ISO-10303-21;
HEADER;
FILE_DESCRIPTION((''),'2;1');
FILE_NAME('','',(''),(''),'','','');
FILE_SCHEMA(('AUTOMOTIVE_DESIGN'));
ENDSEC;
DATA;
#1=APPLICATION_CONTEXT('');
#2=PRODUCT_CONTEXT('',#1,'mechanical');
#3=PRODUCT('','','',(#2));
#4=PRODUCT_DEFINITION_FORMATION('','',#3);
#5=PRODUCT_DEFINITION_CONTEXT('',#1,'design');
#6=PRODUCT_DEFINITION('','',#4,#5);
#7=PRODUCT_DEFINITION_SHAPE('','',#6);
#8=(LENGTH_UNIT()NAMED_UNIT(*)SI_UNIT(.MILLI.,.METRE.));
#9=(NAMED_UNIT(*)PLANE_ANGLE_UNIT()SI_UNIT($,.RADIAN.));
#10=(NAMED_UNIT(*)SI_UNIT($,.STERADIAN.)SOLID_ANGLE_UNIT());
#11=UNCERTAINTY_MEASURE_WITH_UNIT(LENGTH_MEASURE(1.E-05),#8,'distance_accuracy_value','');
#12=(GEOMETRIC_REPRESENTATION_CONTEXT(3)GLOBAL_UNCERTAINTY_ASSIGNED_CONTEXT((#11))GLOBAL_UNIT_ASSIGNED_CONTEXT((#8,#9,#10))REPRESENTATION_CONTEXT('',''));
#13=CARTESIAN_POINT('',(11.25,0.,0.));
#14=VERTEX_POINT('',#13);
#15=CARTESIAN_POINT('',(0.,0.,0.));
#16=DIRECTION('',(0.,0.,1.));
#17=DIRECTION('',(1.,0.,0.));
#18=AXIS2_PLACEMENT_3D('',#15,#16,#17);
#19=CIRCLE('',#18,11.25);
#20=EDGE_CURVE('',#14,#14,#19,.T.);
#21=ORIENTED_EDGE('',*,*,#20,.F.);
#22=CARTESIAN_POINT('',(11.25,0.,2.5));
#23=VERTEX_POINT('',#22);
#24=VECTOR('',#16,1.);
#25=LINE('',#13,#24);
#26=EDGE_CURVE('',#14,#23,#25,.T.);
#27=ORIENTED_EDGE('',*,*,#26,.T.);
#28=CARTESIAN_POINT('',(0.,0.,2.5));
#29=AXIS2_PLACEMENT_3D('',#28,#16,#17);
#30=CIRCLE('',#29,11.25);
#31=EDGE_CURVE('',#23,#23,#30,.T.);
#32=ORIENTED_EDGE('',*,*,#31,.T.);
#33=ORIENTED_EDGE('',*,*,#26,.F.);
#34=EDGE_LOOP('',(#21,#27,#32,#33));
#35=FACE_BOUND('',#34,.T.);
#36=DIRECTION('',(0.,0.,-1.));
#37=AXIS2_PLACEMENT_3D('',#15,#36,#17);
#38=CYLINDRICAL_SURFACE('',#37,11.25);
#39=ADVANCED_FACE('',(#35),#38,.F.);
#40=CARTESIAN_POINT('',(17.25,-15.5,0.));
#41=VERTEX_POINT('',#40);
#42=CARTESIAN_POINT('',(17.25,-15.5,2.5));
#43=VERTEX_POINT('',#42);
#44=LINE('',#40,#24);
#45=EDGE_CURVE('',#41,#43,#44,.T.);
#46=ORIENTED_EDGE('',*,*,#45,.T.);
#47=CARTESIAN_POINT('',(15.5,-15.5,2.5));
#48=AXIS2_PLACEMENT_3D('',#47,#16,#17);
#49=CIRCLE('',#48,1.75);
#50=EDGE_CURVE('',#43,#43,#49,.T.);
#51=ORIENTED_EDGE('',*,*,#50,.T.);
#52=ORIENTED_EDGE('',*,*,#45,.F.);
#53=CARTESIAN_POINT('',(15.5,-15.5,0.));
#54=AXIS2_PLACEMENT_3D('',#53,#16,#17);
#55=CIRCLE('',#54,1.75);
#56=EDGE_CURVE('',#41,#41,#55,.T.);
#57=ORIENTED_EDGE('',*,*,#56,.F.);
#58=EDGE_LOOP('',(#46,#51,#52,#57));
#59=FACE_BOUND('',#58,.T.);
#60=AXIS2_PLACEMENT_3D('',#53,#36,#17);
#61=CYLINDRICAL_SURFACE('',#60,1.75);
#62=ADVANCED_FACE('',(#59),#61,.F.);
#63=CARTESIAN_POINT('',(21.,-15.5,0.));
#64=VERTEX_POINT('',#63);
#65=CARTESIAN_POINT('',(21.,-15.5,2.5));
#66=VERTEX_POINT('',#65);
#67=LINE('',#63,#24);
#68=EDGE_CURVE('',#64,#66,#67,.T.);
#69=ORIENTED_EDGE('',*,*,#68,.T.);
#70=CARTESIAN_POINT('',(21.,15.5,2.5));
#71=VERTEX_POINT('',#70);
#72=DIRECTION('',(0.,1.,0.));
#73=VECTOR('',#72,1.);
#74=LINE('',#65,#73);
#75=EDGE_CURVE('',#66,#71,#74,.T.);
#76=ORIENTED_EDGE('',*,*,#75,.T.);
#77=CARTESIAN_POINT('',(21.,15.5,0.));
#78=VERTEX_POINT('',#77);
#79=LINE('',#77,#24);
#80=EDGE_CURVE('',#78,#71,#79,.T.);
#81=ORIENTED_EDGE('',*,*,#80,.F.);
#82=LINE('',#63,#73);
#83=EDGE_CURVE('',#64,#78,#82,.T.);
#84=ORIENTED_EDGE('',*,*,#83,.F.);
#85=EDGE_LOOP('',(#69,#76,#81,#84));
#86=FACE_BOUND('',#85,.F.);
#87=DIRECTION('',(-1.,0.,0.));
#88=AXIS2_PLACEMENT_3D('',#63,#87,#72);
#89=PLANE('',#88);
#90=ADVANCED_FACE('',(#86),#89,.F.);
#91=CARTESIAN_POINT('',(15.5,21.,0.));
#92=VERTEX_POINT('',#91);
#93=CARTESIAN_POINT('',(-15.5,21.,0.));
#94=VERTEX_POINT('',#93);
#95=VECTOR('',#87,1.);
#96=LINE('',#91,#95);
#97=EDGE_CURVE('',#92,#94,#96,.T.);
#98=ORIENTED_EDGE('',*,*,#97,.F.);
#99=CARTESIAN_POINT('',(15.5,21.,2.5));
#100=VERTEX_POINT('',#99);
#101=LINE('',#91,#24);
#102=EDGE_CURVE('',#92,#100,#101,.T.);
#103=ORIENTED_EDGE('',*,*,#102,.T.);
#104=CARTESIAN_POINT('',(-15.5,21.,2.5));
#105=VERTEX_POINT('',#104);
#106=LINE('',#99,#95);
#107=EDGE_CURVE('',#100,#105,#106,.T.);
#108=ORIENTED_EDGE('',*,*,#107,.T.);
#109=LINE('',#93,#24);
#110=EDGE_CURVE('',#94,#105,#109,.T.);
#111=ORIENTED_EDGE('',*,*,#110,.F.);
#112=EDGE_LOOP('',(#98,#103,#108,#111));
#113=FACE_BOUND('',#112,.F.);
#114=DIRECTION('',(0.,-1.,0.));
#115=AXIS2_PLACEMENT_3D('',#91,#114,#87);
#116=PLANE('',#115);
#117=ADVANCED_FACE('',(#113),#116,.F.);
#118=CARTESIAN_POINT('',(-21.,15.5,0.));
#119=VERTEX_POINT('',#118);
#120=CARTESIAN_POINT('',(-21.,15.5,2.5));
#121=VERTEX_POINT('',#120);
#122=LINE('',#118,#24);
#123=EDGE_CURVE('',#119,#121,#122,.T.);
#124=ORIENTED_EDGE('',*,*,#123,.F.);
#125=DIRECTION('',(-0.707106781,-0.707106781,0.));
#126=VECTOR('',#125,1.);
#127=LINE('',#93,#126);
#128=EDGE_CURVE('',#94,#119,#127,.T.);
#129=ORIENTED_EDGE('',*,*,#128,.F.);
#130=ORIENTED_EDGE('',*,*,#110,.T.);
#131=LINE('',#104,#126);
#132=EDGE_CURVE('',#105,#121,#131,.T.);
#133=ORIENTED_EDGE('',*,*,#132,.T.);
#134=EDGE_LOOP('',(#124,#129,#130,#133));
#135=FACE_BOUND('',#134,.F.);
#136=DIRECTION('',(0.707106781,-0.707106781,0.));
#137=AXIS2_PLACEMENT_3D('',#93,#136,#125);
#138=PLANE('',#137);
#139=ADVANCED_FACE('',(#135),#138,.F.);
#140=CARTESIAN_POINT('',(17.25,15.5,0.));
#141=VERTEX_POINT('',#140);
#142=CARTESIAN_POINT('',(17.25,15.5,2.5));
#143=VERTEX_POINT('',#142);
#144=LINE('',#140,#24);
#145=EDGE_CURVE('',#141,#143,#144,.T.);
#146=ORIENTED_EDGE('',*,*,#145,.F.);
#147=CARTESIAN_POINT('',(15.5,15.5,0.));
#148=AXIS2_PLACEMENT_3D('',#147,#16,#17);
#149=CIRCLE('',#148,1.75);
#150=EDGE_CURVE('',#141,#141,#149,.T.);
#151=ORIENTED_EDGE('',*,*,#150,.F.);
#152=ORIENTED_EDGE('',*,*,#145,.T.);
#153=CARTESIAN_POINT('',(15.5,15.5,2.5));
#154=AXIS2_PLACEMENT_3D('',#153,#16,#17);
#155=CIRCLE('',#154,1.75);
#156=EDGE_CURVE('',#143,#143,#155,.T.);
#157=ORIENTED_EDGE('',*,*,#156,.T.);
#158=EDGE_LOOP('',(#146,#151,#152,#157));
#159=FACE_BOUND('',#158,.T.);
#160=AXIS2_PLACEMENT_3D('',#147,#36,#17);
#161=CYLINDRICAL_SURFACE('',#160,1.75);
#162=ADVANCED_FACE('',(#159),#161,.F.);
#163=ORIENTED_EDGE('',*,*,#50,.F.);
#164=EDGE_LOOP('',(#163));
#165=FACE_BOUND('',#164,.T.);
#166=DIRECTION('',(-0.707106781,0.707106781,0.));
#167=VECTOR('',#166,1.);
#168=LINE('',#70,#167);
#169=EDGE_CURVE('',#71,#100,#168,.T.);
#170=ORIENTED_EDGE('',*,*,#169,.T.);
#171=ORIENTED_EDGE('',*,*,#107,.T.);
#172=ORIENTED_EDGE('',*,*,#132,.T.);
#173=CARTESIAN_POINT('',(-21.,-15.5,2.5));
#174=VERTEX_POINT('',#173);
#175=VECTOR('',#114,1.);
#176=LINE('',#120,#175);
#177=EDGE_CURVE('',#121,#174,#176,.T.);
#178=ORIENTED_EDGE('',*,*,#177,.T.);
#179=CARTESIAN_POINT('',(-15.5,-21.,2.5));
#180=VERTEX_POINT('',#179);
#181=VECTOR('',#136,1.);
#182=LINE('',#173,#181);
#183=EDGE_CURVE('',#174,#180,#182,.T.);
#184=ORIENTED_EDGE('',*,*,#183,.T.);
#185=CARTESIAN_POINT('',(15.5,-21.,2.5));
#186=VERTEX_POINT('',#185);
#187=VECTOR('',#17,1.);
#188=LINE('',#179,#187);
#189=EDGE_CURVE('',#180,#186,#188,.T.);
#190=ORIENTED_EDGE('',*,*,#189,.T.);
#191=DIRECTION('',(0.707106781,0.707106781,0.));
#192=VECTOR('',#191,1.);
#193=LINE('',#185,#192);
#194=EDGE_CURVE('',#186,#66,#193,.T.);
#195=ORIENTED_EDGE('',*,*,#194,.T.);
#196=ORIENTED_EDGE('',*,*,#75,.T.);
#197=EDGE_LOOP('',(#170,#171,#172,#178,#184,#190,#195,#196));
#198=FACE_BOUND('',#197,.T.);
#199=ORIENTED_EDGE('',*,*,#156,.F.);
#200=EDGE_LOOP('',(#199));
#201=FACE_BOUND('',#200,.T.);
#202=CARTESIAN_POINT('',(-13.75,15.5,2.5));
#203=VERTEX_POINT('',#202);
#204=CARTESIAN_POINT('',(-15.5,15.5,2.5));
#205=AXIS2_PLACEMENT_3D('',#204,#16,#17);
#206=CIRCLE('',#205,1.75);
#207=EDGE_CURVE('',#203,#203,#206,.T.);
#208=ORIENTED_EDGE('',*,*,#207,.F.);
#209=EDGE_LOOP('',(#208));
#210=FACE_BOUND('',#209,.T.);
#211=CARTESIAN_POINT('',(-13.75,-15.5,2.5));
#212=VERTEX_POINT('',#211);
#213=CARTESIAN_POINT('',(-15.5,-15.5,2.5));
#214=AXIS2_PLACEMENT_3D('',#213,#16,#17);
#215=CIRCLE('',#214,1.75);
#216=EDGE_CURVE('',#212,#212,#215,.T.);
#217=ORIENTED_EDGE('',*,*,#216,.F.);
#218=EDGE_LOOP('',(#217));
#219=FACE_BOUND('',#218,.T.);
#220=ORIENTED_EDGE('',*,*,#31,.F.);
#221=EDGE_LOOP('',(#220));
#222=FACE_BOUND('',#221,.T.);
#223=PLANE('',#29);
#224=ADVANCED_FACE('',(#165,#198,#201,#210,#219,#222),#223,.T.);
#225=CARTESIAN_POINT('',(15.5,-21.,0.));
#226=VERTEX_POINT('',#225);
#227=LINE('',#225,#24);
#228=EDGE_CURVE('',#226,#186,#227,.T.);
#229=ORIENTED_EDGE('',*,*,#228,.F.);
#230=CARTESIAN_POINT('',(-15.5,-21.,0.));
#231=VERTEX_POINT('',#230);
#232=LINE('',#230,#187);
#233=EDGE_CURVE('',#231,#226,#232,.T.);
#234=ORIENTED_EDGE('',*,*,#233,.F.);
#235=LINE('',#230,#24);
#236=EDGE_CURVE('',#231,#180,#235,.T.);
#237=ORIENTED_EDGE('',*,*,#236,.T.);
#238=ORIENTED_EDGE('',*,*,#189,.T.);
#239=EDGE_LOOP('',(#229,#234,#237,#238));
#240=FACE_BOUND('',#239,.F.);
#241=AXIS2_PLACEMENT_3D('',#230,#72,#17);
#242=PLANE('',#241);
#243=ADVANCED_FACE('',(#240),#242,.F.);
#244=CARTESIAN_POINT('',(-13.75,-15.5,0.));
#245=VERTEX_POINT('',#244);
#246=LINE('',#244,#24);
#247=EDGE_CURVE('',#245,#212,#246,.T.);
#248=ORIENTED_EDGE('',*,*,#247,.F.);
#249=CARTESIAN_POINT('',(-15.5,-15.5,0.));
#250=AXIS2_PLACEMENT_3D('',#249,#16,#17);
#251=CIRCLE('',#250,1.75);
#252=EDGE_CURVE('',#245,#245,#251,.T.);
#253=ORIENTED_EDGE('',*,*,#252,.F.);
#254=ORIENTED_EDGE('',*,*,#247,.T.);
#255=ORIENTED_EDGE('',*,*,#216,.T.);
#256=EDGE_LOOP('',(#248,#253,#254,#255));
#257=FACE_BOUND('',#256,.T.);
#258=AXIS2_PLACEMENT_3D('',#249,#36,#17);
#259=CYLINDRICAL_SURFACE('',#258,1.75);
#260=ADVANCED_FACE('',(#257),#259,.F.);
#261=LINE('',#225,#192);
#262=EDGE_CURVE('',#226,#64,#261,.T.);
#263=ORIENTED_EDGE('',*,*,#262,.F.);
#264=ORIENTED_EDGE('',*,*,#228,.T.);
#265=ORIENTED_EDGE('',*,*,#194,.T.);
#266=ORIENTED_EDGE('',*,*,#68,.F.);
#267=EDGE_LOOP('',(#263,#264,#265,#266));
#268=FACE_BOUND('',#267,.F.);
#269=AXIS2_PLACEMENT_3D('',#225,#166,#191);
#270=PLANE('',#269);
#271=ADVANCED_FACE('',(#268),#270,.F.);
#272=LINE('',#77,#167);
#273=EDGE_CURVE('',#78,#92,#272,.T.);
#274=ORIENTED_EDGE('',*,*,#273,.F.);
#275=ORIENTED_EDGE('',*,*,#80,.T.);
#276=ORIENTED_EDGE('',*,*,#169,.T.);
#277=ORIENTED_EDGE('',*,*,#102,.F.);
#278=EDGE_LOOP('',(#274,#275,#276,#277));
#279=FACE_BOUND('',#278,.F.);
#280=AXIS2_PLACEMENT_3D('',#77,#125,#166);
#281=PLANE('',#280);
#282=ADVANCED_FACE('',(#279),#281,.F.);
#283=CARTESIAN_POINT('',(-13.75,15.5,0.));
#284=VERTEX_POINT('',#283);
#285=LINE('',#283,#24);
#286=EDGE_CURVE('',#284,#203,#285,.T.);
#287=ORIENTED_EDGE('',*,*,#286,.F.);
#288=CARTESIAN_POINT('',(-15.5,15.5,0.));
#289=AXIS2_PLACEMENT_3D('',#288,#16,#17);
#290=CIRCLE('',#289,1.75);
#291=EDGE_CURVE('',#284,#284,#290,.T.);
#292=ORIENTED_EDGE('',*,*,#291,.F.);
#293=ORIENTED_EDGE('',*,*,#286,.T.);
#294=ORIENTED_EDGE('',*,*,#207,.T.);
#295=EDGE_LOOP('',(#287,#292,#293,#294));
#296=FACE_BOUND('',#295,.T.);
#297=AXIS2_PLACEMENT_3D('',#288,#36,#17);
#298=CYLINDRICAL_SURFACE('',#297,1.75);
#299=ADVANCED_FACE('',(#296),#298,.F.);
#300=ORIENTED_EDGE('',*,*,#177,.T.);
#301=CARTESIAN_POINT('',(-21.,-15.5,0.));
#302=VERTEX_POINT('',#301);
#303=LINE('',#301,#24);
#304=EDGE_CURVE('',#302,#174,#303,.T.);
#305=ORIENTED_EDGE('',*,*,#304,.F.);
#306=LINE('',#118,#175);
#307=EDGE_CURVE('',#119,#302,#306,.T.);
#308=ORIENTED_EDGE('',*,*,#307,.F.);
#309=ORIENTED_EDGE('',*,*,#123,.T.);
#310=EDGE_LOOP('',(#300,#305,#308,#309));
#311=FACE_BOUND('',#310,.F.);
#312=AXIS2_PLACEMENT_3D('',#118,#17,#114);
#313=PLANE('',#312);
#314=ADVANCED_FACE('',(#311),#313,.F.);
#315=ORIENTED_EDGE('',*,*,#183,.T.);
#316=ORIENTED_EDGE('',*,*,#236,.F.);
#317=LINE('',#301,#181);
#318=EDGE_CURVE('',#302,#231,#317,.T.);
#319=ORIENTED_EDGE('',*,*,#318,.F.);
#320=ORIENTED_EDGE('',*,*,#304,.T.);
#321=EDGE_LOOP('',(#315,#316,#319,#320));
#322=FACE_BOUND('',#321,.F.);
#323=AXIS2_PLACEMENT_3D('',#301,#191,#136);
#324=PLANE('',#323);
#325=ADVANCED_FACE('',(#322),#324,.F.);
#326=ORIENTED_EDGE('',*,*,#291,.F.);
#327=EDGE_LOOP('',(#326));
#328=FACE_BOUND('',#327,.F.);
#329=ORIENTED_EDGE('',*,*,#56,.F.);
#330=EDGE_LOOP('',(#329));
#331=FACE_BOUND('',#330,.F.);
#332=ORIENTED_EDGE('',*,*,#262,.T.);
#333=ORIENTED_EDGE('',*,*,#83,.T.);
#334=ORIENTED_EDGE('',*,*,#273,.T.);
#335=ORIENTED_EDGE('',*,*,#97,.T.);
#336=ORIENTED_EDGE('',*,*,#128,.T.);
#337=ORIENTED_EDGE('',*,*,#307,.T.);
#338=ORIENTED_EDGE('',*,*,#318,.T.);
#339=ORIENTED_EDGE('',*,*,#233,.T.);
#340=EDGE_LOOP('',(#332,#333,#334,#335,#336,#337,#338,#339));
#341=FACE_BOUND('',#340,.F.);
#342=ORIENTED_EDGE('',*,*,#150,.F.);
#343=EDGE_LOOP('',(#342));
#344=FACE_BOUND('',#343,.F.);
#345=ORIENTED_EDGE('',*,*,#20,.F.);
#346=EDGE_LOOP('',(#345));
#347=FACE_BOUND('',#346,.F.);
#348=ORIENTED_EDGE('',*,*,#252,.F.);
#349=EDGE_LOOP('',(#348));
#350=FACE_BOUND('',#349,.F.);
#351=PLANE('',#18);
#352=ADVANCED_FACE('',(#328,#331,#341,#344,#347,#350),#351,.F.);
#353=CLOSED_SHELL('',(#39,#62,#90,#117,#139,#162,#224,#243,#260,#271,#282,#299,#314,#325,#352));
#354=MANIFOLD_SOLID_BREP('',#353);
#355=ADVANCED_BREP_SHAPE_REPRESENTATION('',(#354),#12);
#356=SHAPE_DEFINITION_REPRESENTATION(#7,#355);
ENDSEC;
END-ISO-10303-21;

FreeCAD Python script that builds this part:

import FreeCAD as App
import Part
import Sketcher
from FreeCAD import Vector


def add_polygon(sketch, points):
    """Adds a closed chain of lines whose ends are joined by coincident constraints."""
    first, n = sketch.GeometryCount, len(points)
    for a, b in zip(points, points[1:] + points[:1]):
        sketch.addGeometry(Part.LineSegment(App.Vector(*a, 0), App.Vector(*b, 0)), False)
    for i in range(n):
        sketch.addConstraint(Sketcher.Constraint("Coincident", first + i, 2, first + (i + 1) % n, 1))

doc = App.newDocument("Part")
body = doc.addObject("PartDesign::Body", "Body")

# Sketch on XY plane
sketch1 = doc.addObject("Sketcher::SketchObject", "Sketch")
body.addObject(sketch1)
sketch1.AttachmentSupport = (doc.XY_Plane, [""])
sketch1.MapMode = "FlatFace"
add_polygon(sketch1, [(-15.5, -21), (15.5, -21), (21, -15.5), (21, 15.5), (15.5, 21), (-15.5, 21), (-21, 15.5), (-21, -15.5)])  # lines 0-7
sketch1.addGeometry(Part.Circle(Vector(-15.5, -15.5, 0), Vector(0, 0, 1), 1.8), False)  # 8
sketch1.addGeometry(Part.Circle(Vector(15.5, -15.5, 0), Vector(0, 0, 1), 1.8), False)  # 9
sketch1.addGeometry(Part.Circle(Vector(-15.5, 15.5, 0), Vector(0, 0, 1), 1.8), False)  # 10
sketch1.addGeometry(Part.Circle(Vector(0, 0, 0), Vector(0, 0, 1), 11.2), False)  # 11
sketch1.addGeometry(Part.Circle(Vector(15.5, 15.5, 0), Vector(0, 0, 1), 1.8), False)  # 12
sketch1.addConstraint(Sketcher.Constraint("Horizontal", 0))
sketch1.addConstraint(Sketcher.Constraint("Vertical", 2))
sketch1.addConstraint(Sketcher.Constraint("Horizontal", 4))
sketch1.addConstraint(Sketcher.Constraint("Vertical", 6))
sketch1.addConstraint(Sketcher.Constraint("Coincident", 11, 3, -1, 1))
sketch1.addConstraint(Sketcher.Constraint("Equal", 8, 9))
sketch1.addConstraint(Sketcher.Constraint("Equal", 9, 10))
sketch1.addConstraint(Sketcher.Constraint("Equal", 10, 12))
sketch1.addConstraint(Sketcher.Constraint("Symmetric", 9, 3, 10, 3, -1, 1))
sketch1.addConstraint(Sketcher.Constraint("Symmetric", 8, 3, 12, 3, -1, 1))
sketch1.addConstraint(Sketcher.Constraint("Symmetric", 0, 2, 4, 2, -1, 1))
sketch1.addConstraint(Sketcher.Constraint("Symmetric", 1, 2, 5, 2, -1, 1))
sketch1.addConstraint(Sketcher.Constraint("Symmetric", 8, 3, 9, 3, -2))
sketch1.addConstraint(Sketcher.Constraint("Perpendicular", 1, 3))
sketch1.addConstraint(Sketcher.Constraint("Perpendicular", 5, 7))
sketch1.addConstraint(Sketcher.Constraint("Horizontal", 9, 3, 1, 2))
sketch1.addConstraint(Sketcher.Constraint("Horizontal", 12, 3, 2, 2))
sketch1.addConstraint(Sketcher.Constraint("Horizontal", 1, 2, 6, 2))
sketch1.addConstraint(Sketcher.Constraint("Vertical", 12, 3, 0, 2))
sketch1.addConstraint(Sketcher.Constraint("Vertical", 0, 2, 3, 2))
sketch1.addConstraint(Sketcher.Constraint("Equal", 4, 2))
sketch1.addConstraint(Sketcher.Constraint("Diameter", 8, 3.5))
sketch1.addConstraint(Sketcher.Constraint("Diameter", 11, 22.5))
sketch1.addConstraint(Sketcher.Constraint("DistanceX", 0, 1, 0, 2, 31.0))
sketch1.addConstraint(Sketcher.Constraint("DistanceY", 0, 2, -1, 1, 21.0))
pad1 = doc.addObject("PartDesign::Pad", "Pad")
body.addObject(pad1)
pad1.Profile = sketch1
pad1.Length = 2.5

doc.recompute()
